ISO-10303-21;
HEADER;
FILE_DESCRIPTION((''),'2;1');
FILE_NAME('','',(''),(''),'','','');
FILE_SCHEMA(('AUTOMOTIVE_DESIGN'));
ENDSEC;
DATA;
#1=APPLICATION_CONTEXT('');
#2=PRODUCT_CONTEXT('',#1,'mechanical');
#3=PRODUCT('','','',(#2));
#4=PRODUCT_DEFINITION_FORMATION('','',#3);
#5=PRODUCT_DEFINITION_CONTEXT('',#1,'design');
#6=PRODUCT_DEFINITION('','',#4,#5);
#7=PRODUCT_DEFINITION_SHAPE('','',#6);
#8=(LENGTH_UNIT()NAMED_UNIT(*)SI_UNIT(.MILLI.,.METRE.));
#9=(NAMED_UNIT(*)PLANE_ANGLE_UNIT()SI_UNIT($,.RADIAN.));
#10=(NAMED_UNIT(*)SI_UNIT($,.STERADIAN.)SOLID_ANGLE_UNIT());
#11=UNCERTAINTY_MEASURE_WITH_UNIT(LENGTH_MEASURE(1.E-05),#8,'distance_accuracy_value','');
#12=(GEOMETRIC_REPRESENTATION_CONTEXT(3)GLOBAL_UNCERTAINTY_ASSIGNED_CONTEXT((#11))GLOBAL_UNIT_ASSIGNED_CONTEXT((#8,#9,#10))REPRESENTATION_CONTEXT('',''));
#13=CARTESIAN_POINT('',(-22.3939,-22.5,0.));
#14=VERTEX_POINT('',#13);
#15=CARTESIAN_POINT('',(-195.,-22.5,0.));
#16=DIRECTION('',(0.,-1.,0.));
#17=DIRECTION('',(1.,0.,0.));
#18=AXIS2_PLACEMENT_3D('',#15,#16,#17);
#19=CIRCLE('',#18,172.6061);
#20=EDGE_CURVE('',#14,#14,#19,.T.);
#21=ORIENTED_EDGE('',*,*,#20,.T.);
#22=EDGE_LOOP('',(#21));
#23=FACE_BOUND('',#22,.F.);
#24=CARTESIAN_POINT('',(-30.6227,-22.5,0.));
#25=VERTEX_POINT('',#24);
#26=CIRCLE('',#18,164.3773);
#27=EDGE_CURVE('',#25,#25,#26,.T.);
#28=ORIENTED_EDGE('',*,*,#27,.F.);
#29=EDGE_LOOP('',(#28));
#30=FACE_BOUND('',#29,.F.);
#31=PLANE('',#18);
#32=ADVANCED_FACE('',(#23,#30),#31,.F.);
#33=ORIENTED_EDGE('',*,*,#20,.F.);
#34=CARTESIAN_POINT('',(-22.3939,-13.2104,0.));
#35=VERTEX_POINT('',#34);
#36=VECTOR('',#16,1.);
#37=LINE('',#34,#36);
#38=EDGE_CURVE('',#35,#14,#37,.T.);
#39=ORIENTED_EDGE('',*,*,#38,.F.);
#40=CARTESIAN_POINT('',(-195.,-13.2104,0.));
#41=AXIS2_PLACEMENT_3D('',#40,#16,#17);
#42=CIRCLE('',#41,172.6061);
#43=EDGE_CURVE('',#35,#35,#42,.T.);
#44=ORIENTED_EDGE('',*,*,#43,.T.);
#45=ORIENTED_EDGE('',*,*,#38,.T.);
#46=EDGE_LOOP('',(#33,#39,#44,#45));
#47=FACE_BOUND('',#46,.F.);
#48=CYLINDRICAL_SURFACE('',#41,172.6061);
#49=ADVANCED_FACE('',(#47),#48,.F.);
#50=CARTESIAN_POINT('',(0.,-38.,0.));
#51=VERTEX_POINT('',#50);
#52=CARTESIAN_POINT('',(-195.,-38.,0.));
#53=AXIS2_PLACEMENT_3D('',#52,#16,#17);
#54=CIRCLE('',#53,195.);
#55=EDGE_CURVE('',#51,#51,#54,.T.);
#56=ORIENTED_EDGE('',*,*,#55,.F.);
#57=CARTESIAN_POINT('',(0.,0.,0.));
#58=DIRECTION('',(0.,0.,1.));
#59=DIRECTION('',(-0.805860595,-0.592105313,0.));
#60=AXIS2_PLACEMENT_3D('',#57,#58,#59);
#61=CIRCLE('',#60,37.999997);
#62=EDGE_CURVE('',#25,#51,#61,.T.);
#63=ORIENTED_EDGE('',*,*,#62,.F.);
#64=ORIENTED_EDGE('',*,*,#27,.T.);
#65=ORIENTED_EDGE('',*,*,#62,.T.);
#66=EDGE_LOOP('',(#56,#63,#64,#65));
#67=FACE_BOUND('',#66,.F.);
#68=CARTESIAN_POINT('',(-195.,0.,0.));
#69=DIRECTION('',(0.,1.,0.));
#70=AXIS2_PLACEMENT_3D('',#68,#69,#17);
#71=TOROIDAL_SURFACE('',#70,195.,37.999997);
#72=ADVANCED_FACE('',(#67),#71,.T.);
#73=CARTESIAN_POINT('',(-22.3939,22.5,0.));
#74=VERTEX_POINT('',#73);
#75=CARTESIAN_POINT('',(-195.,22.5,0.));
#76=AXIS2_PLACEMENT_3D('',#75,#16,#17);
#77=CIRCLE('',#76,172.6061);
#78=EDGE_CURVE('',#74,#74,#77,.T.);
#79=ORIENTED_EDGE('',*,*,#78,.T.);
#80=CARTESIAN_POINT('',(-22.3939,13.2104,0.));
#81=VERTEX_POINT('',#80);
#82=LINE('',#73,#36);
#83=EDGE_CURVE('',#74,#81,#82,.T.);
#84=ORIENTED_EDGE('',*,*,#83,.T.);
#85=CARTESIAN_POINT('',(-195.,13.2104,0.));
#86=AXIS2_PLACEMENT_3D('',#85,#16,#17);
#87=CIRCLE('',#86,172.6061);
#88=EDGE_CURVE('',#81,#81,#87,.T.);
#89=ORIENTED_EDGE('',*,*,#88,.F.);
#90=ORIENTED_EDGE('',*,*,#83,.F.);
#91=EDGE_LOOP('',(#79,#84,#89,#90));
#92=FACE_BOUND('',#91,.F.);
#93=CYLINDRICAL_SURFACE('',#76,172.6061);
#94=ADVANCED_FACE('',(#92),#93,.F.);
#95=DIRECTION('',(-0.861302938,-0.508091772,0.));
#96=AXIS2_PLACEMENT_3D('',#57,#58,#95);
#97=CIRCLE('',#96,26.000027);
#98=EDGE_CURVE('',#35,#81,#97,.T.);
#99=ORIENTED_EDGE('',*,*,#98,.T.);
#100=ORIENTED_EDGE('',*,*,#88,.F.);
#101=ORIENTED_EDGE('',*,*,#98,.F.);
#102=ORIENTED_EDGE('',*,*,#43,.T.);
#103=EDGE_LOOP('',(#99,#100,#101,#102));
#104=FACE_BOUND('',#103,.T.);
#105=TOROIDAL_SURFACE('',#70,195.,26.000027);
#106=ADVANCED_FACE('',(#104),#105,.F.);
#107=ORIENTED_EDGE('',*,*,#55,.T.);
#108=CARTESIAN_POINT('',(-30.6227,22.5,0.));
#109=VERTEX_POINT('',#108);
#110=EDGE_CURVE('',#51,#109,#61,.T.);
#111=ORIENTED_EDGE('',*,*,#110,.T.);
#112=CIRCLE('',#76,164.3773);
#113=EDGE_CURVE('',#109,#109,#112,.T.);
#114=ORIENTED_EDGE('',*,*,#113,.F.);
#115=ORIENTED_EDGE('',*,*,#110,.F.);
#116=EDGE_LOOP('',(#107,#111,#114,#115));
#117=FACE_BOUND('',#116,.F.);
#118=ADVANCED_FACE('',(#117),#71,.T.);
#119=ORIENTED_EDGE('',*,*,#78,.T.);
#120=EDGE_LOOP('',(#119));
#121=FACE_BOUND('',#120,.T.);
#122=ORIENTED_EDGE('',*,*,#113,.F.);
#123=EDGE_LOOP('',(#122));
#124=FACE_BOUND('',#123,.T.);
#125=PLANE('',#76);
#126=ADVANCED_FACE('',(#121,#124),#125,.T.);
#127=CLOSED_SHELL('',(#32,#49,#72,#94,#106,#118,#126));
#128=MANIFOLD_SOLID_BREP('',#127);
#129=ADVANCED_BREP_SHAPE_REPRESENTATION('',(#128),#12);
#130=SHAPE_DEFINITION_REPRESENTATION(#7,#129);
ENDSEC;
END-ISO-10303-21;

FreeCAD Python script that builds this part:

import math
import FreeCAD as App
import Part
import Sketcher

V = App.Vector
Q = App.Units.Quantity

doc = App.newDocument("Part")
body = doc.addObject("PartDesign::Body", "Body")

# Sketch on XY plane
sketch1 = body.newObject("Sketcher::SketchObject", "Sketch")
sketch1.AttachmentSupport = (doc.getObject("XY_Plane"), [""])
sketch1.MapMode = "FlatFace"
sketch1.addGeometry([
    Part.ArcOfCircle(Part.Circle(V(0, 0, 0), V(0, 0, 1), 26), math.radians(-149), math.radians(149)),  # 0
    Part.LineSegment(V(-22, -13, 0), V(-22, -22, 0)),  # 1
    Part.LineSegment(V(-22, -22, 0), V(-31, -22, 0)),  # 2
    Part.ArcOfCircle(Part.Circle(V(0, 0, 0), V(0, 0, 1), 38), math.radians(-144), math.radians(144)),  # 3
    Part.LineSegment(V(-31, 22, 0), V(-22, 22, 0)),  # 4
    Part.LineSegment(V(-22, 22, 0), V(-22, 13, 0)),  # 5
], False)
sketch1.addGeometry(Part.LineSegment(V(-195, 22, 0), V(-195, -22, 0)), True)  # axis
sketch1.addConstraint([
    Sketcher.Constraint("Coincident", 0, 1, 1, 1),
    Sketcher.Constraint("Coincident", 1, 2, 2, 1),
    Sketcher.Constraint("Coincident", 2, 2, 3, 1),
    Sketcher.Constraint("Coincident", 3, 2, 4, 1),
    Sketcher.Constraint("Coincident", 4, 2, 5, 1),
    Sketcher.Constraint("Coincident", 5, 2, 0, 2),
    Sketcher.Constraint("Vertical", 1),
    Sketcher.Constraint("Horizontal", 2),
    Sketcher.Constraint("Horizontal", 4),
    Sketcher.Constraint("Vertical", 5),
    Sketcher.Constraint("Vertical", 6),
    Sketcher.Constraint("Coincident", 0, 3, -1, 1),
    Sketcher.Constraint("Coincident", 3, 3, -1, 1),
    Sketcher.Constraint("Symmetric", 1, 2, 4, 2, -1),
    Sketcher.Constraint("Horizontal", 4, 2, 6, 1),
    Sketcher.Constraint("Horizontal", 2, 2, 6, 2),
    Sketcher.Constraint("Radius", 0, Q("26 mm")),
    Sketcher.Constraint("Radius", 3, Q("38 mm")),
    Sketcher.Constraint("DistanceY", 6, 2, 6, 1, Q("45 mm")),
    Sketcher.Constraint("DistanceX", 6, 1, -1, 1, Q("195 mm")),
    Sketcher.Constraint("DistanceX", 2, 2, 2, 1, Q("8.2288 mm")),
])
revolution = body.newObject("PartDesign::Revolution", "Revolution")
revolution.Profile = sketch1
revolution.ReferenceAxis = (sketch1, ["Axis0"])
revolution.Angle = 360

doc.recompute()
